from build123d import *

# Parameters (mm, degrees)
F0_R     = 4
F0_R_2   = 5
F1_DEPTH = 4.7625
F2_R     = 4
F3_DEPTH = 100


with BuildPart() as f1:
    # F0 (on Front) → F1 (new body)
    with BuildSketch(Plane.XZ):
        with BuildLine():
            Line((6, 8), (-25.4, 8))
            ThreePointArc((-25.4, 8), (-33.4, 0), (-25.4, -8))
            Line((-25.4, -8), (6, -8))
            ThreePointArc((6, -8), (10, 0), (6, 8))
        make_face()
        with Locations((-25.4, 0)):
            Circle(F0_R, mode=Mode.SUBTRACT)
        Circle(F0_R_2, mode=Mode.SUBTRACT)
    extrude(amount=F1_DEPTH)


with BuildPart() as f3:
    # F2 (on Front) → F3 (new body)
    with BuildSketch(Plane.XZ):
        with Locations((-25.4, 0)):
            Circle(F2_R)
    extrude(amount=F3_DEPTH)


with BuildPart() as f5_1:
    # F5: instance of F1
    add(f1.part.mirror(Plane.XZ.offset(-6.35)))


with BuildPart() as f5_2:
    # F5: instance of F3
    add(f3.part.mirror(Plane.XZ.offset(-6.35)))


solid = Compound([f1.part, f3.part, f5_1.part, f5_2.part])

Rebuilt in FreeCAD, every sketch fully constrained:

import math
import FreeCAD as App
import Part
import Sketcher

V = App.Vector
Q = App.Units.Quantity

doc = App.newDocument("Part")
body = doc.addObject("PartDesign::Body", "Body")

# Sketch on XZ plane
sketch1 = body.newObject("Sketcher::SketchObject", "Sketch")
sketch1.AttachmentSupport = (doc.getObject("XZ_Plane"), [""])
sketch1.MapMode = "FlatFace"
sketch1.addGeometry([
    Part.LineSegment(V(6, 8, 0), V(-25.4, 8, 0)),  # 0
    Part.ArcOfCircle(Part.Circle(V(-25.4, 0, 0), V(0, 0, 1), 8), math.radians(90), math.radians(270)),  # 1
    Part.LineSegment(V(-25.4, -8, 0), V(6, -8, 0)),  # 2
    Part.ArcOfCircle(Part.Circle(V(0, 0, 0), V(0, 0, 1), 10), math.radians(-53), math.radians(53)),  # 3
    Part.Circle(V(-25.4, 0, 0), V(0, 0, 1), 4),  # 4
    Part.Circle(V(0, 0, 0), V(0, 0, 1), 5),  # 5
], False)
sketch1.addConstraint([
    Sketcher.Constraint("Tangent", 0, 2, 1, 1),
    Sketcher.Constraint("Tangent", 1, 2, 2, 1),
    Sketcher.Constraint("Coincident", 2, 2, 3, 1),
    Sketcher.Constraint("Coincident", 3, 2, 0, 1),
    Sketcher.Constraint("Horizontal", 0),
    Sketcher.Constraint("Horizontal", 2),
    Sketcher.Constraint("Coincident", 3, 3, -1, 1),
    Sketcher.Constraint("Coincident", 5, 3, -1, 1),
    Sketcher.Constraint("Coincident", 4, 3, 1, 3),
    Sketcher.Constraint("PointOnObject", 1, 3, -1),
    Sketcher.Constraint("Diameter", 4, Q("8 mm")),
    Sketcher.Constraint("Diameter", 5, Q("10 mm")),
    Sketcher.Constraint("Radius", 1, Q("8 mm")),
    Sketcher.Constraint("Radius", 3, Q("10 mm")),
    Sketcher.Constraint("DistanceX", 0, 2, 0, 1, Q("31.4 mm")),
])
pad1 = body.newObject("PartDesign::Pad", "Pad")
pad1.Profile = sketch1
pad1.Length = 4.7625
body2 = doc.addObject("PartDesign::Body", "Body001")

# Sketch on XZ plane
sketch2 = body2.newObject("Sketcher::SketchObject", "Sketch001")
sketch2.AttachmentSupport = (doc.getObject("XZ_Plane001"), [""])
sketch2.MapMode = "FlatFace"
sketch2.addGeometry(Part.Circle(V(-25.4, 0, 0), V(0, 0, 1), 4), False)
sketch2.addConstraint([
    Sketcher.Constraint("PointOnObject", 0, 3, -1),
    Sketcher.Constraint("Diameter", 0, Q("8 mm")),
    Sketcher.Constraint("DistanceX", 0, 3, -1, 1, Q("25.4 mm")),
])
pad2 = body2.newObject("PartDesign::Pad", "Pad001")
pad2.Profile = sketch2
pad2.Length = 100
body3 = doc.addObject("PartDesign::Body", "Body002")
doc.recompute()

mirroring = doc.addObject("Part::Mirroring", "Mirroring")
mirroring.Source = body
mirroring.Base = V(0, 6.35, 0)
mirroring.Normal = V(0, -1, 0)
body3.BaseFeature = mirroring
doc.recompute()
body4 = doc.addObject("PartDesign::Body", "Body003")
doc.recompute()

mirroring2 = doc.addObject("Part::Mirroring", "Mirroring001")
mirroring2.Source = body2
mirroring2.Base = V(0, 6.35, 0)
mirroring2.Normal = V(0, -1, 0)
body4.BaseFeature = mirroring2
doc.recompute()
mirroring.Visibility = False
mirroring2.Visibility = False

doc.recompute()
